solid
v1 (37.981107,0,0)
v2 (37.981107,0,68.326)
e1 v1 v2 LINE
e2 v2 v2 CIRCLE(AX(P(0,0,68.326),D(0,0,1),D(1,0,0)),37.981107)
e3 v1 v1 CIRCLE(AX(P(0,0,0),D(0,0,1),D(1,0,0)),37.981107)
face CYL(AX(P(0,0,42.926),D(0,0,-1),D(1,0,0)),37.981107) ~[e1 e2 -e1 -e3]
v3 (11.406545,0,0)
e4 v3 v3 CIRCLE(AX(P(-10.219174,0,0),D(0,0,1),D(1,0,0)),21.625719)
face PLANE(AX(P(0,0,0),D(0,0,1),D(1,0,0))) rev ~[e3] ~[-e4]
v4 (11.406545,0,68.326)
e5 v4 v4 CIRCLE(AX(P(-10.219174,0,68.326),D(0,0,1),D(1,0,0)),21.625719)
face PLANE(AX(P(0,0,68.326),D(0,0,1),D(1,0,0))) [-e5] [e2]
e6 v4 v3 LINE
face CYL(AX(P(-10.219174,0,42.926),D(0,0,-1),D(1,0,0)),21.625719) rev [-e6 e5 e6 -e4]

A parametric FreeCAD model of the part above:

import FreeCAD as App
import Part
import Sketcher
from FreeCAD import Vector

doc = App.newDocument("Part")
params = doc.addObject("Spreadsheet::Sheet", "Params")
for row, (alias, value) in enumerate([
    ("pad1_length", "1.69 in"),
    ("pocket1_length", "0.56 in"),
    ("pad2_length", "1 in"),
], start=1):
    params.set(f"A{row}", alias)
    params.set(f"B{row}", "=" + value)
    params.setAlias(f"B{row}", alias)

body = doc.addObject("PartDesign::Body", "Body")

# Sketch on XY plane
sketch1 = body.newObject("Sketcher::SketchObject", "Sketch")
sketch1.AttachmentSupport = (doc.getObject("XY_Plane"), [""])
sketch1.MapMode = "FlatFace"
sketch1.addGeometry(Part.Circle(Vector(0, 0, 0), Vector(0, 0, 1), 38), False)
sketch1.addGeometry(Part.Circle(Vector(-10, 0, 0), Vector(0, 0, 1), 22), False)
sketch1.addConstraint(Sketcher.Constraint("Coincident", 0, 3, -1, 1))
sketch1.addConstraint(Sketcher.Constraint("PointOnObject", 1, 3, -1))
sketch1.addConstraint(Sketcher.Constraint("Diameter", 0, 75.962214))
sketch1.addConstraint(Sketcher.Constraint("Diameter", 1, 43.251438))
sketch1.addConstraint(Sketcher.Constraint("DistanceX", 1, 3, -1, 1, 10.219174))
pad1 = body.newObject("PartDesign::Pad", "Pad")
pad1.Profile = sketch1
pad1.setExpression("Length", "Params.pad1_length")

# Sketch on XY plane
sketch2 = body.newObject("Sketcher::SketchObject", "Sketch001")
sketch2.AttachmentSupport = (doc.getObject("XY_Plane"), [""])
sketch2.MapMode = "FlatFace"
sketch2.AttachmentOffset = App.Placement(Vector(0, 0, 1.69 * 25.4), App.Rotation())
sketch2.addGeometry(Part.Circle(Vector(0, 0, 0), Vector(0, 0, 1), 38), False)
sketch2.addGeometry(Part.Circle(Vector(-10, 0, 0), Vector(0, 0, 1), 22), False)
sketch2.addConstraint(Sketcher.Constraint("Coincident", 0, 3, -1, 1))
sketch2.addConstraint(Sketcher.Constraint("PointOnObject", 1, 3, -1))
sketch2.addConstraint(Sketcher.Constraint("Diameter", 0, 75.962214))
sketch2.addConstraint(Sketcher.Constraint("Diameter", 1, 43.251438))
sketch2.addConstraint(Sketcher.Constraint("DistanceX", 1, 3, -1, 1, 10.219174))
pocket1 = body.newObject("PartDesign::Pocket", "Pocket")
pocket1.Profile = sketch2
pocket1.setExpression("Length", "Params.pocket1_length")
pocket1.Reversed = True

# Sketch on XY plane
sketch3 = body.newObject("Sketcher::SketchObject", "Sketch002")
sketch3.AttachmentSupport = (doc.getObject("XY_Plane"), [""])
sketch3.MapMode = "FlatFace"
sketch3.AttachmentOffset = App.Placement(Vector(0, 0, 1.69 * 25.4), App.Rotation())
sketch3.addGeometry(Part.Circle(Vector(0, 0, 0), Vector(0, 0, 1), 38), False)
sketch3.addGeometry(Part.Circle(Vector(-10, 0, 0), Vector(0, 0, 1), 22), False)
sketch3.addConstraint(Sketcher.Constraint("Coincident", 0, 3, -1, 1))
sketch3.addConstraint(Sketcher.Constraint("PointOnObject", 1, 3, -1))
sketch3.addConstraint(Sketcher.Constraint("Diameter", 0, 75.962214))
sketch3.addConstraint(Sketcher.Constraint("Diameter", 1, 43.251438))
sketch3.addConstraint(Sketcher.Constraint("DistanceX", 1, 3, -1, 1, 10.219174))
pad2 = body.newObject("PartDesign::Pad", "Pad001")
pad2.Profile = sketch3
pad2.setExpression("Length", "Params.pad2_length")

doc.recompute()
